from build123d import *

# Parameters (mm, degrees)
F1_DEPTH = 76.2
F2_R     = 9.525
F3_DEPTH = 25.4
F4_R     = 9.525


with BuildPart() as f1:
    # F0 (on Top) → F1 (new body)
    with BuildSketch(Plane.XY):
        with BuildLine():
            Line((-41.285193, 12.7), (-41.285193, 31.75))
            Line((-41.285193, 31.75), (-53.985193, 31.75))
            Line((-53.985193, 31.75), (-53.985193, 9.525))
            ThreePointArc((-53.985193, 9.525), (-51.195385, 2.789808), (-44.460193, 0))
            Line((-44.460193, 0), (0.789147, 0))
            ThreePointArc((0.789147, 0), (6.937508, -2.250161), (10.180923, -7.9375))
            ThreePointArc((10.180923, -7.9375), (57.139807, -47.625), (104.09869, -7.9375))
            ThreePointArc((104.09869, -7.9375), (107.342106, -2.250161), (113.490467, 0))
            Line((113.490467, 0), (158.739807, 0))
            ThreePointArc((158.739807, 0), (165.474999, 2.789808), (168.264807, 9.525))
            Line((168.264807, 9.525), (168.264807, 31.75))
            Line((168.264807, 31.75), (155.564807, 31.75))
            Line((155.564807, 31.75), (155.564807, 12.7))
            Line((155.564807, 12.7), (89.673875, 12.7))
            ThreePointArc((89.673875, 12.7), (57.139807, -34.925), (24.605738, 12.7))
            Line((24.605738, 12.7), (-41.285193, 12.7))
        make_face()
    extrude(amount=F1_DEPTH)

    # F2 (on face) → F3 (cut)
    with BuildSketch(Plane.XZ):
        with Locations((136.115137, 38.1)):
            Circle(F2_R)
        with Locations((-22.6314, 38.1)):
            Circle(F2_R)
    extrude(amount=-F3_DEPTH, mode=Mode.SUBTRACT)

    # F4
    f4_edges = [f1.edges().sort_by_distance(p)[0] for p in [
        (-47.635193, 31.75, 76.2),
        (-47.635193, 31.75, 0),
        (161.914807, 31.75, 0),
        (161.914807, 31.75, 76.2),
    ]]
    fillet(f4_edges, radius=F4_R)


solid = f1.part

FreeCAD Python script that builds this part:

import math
import FreeCAD as App
import Part
import Sketcher
Q = App.Units.Quantity


def edges_at(feature, points):
    """Names of the edges that pass closest to the given points."""
    edges = feature.Shape.Edges
    near = lambda p: min(range(len(edges)), key=lambda i: edges[i].distToShape(Part.Vertex(*p))[0])
    return sorted({f"Edge{near(p) + 1}" for p in points})

doc = App.newDocument("Part")
params = doc.addObject("Spreadsheet::Sheet", "Params")
for row, (alias, value) in enumerate([
    ("sketch1_width", "0.5 in"),
    ("sketch1_radius", "0.375 in"),
    ("sketch1_radius2", "1.875 in"),
    ("sketch1_radius3", "1.375 in"),
    ("sketch1_height", "0.75 in"),
    ("pad1_length", "3 in"),
    ("sketch2_diameter", "0.75 in"),
    ("pocket1_length", "1 in"),
    ("fillet_radius", "0.375 in"),
], start=1):
    params.set(f"A{row}", alias)
    params.set(f"B{row}", "=" + value)
    params.setAlias(f"B{row}", alias)

body = doc.addObject("PartDesign::Body", "Body")

sketch1 = body.newObject("Sketcher::SketchObject", "Sketch")
sketch1.AttachmentSupport = (doc.getObject("XY_Plane"), [""])
sketch1.MapMode = "FlatFace"
sketch1.addGeometry([
    Part.LineSegment(App.Vector(-41, 13, 0), App.Vector(-41, 32, 0)),
    Part.LineSegment(App.Vector(-41, 32, 0), App.Vector(-54, 32, 0)),
    Part.LineSegment(App.Vector(-54, 32, 0), App.Vector(-54, 10, 0)),
    Part.ArcOfCircle(Part.Circle(App.Vector(-44, 10, 0), App.Vector(0, 0, 1), 10), math.radians(-180), math.radians(-90)),
    Part.LineSegment(App.Vector(-44, 0, 0), App.Vector(1, 0, 0)),
    Part.ArcOfCircle(Part.Circle(App.Vector(1, -10, 0), App.Vector(0, 0, 1), 10), math.radians(10), math.radians(90)),
    Part.ArcOfCircle(Part.Circle(App.Vector(57, 0, 0), App.Vector(0, 0, 1), 48), math.radians(-170), math.radians(-10)),
    Part.ArcOfCircle(Part.Circle(App.Vector(113, -10, 0), App.Vector(0, 0, 1), 10), math.radians(90), math.radians(170)),
    Part.LineSegment(App.Vector(113, 0, 0), App.Vector(159, 0, 0)),
    Part.ArcOfCircle(Part.Circle(App.Vector(159, 10, 0), App.Vector(0, 0, 1), 10), math.radians(-90), math.radians(0)),
    Part.LineSegment(App.Vector(168, 10, 0), App.Vector(168, 32, 0)),
    Part.LineSegment(App.Vector(168, 32, 0), App.Vector(156, 32, 0)),
    Part.LineSegment(App.Vector(156, 32, 0), App.Vector(156, 13, 0)),
    Part.LineSegment(App.Vector(156, 13, 0), App.Vector(90, 13, 0)),
    Part.ArcOfCircle(Part.Circle(App.Vector(57, 0, 0), App.Vector(0, 0, 1), 35), math.radians(159), math.radians(381)),
    Part.LineSegment(App.Vector(25, 13, 0), App.Vector(-41, 13, 0)),
], False)
sketch1.addConstraint([
    Sketcher.Constraint("Coincident", 0, 2, 1, 1),
    Sketcher.Constraint("Coincident", 1, 2, 2, 1),
    Sketcher.Constraint("Tangent", 2, 2, 3, 1),
    Sketcher.Constraint("Tangent", 3, 2, 4, 1),
    Sketcher.Constraint("Tangent", 4, 2, 5, 2),
    Sketcher.Constraint("Tangent", 5, 1, 6, 1),
    Sketcher.Constraint("Tangent", 6, 2, 7, 2),
    Sketcher.Constraint("Tangent", 7, 1, 8, 1),
    Sketcher.Constraint("Tangent", 8, 2, 9, 1),
    Sketcher.Constraint("Tangent", 9, 2, 10, 1),
    Sketcher.Constraint("Coincident", 10, 2, 11, 1),
    Sketcher.Constraint("Coincident", 11, 2, 12, 1),
    Sketcher.Constraint("Coincident", 12, 2, 13, 1),
    Sketcher.Constraint("Coincident", 13, 2, 14, 2),
    Sketcher.Constraint("Coincident", 14, 1, 15, 1),
    Sketcher.Constraint("Coincident", 15, 2, 0, 1),
    Sketcher.Constraint("Vertical", 0),
    Sketcher.Constraint("Horizontal", 1),
    Sketcher.Constraint("Vertical", 2),
    Sketcher.Constraint("Horizontal", 4),
    Sketcher.Constraint("Horizontal", 8),
    Sketcher.Constraint("Vertical", 10),
    Sketcher.Constraint("Horizontal", 11),
    Sketcher.Constraint("Vertical", 12),
    Sketcher.Constraint("Horizontal", 13),
    Sketcher.Constraint("Horizontal", 15),
    Sketcher.Constraint("Coincident", 14, 3, 6, 3),
    Sketcher.Constraint("Equal", 3, 5),
    Sketcher.Constraint("Equal", 3, 7),
    Sketcher.Constraint("Equal", 7, 9),
    Sketcher.Constraint("PointOnObject", 6, 3, -1),
    Sketcher.Constraint("PointOnObject", 3, 2, -1),
    Sketcher.Constraint("PointOnObject", 7, 1, -1),
    Sketcher.Constraint("Horizontal", 1, 2, 10, 2),
    Sketcher.Constraint("Horizontal", 13, 2, 14, 1),
    Sketcher.Constraint("Equal", 4, 8),
    Sketcher.Constraint("Equal", 1, 11),
    Sketcher.Constraint("DistanceX", 1, 2, 1, 1, Q("0.5 in")),
    Sketcher.Constraint("Radius", 3, Q("0.375 in")),
    Sketcher.Constraint("Radius", 6, Q("1.875 in")),
    Sketcher.Constraint("Radius", 14, Q("1.375 in")),
    Sketcher.Constraint("DistanceX", 3, 3, 6, 3, Q("4 in")),
    Sketcher.Constraint("DistanceY", 0, 1, 0, 2, Q("0.75 in")),
    Sketcher.Constraint("DistanceY", -1, 1, 12, 2, Q("0.5 in")),
    Sketcher.Constraint("DistanceX", -1, 1, 6, 2, Q("104.09869 mm")),
])
sketch1.setExpression("Constraints[37]", "Params.sketch1_width")
sketch1.setExpression("Constraints[38]", "Params.sketch1_radius")
sketch1.setExpression("Constraints[39]", "Params.sketch1_radius2")
sketch1.setExpression("Constraints[40]", "Params.sketch1_radius3")
sketch1.setExpression("Constraints[42]", "Params.sketch1_height")
pad1 = body.newObject("PartDesign::Pad", "Pad")
pad1.Profile = sketch1
pad1.setExpression("Length", "Params.pad1_length")

sketch2 = body.newObject("Sketcher::SketchObject", "Sketch001")
sketch2.AttachmentSupport = (doc.getObject("XZ_Plane"), [""])
sketch2.MapMode = "FlatFace"
sketch2.addGeometry([
    Part.Circle(App.Vector(136, 38, 0), App.Vector(0, 0, 1), 10),
    Part.Circle(App.Vector(-23, 38, 0), App.Vector(0, 0, 1), 10),
], False)
sketch2.addConstraint([
    Sketcher.Constraint("Equal", 0, 1),
    Sketcher.Constraint("Horizontal", 0, 3, 1, 3),
    Sketcher.Constraint("Diameter", 0, Q("0.75 in")),
    Sketcher.Constraint("DistanceY", -1, 1, 0, 3, Q("1.5 in")),
    Sketcher.Constraint("DistanceX", 1, 3, -1, 1, Q("0.891 in")),
    Sketcher.Constraint("DistanceX", -1, 1, 0, 3, Q("136.115137 mm")),
])
sketch2.setExpression("Constraints[2]", "Params.sketch2_diameter")
pocket1 = body.newObject("PartDesign::Pocket", "Pocket")
pocket1.Profile = sketch2
pocket1.setExpression("Length", "Params.pocket1_length")
doc.recompute()

fillet = body.newObject("PartDesign::Fillet", "Fillet")
fillet.Base = (pocket1, edges_at(pocket1, [
    (-47.635, 31.75, 76.2),
    (-47.635, 31.75, 0),
    (161.915, 31.75, 0),
    (161.915, 31.75, 76.2),
]))
fillet.setExpression("Radius", "Params.fillet_radius")

doc.recompute()
